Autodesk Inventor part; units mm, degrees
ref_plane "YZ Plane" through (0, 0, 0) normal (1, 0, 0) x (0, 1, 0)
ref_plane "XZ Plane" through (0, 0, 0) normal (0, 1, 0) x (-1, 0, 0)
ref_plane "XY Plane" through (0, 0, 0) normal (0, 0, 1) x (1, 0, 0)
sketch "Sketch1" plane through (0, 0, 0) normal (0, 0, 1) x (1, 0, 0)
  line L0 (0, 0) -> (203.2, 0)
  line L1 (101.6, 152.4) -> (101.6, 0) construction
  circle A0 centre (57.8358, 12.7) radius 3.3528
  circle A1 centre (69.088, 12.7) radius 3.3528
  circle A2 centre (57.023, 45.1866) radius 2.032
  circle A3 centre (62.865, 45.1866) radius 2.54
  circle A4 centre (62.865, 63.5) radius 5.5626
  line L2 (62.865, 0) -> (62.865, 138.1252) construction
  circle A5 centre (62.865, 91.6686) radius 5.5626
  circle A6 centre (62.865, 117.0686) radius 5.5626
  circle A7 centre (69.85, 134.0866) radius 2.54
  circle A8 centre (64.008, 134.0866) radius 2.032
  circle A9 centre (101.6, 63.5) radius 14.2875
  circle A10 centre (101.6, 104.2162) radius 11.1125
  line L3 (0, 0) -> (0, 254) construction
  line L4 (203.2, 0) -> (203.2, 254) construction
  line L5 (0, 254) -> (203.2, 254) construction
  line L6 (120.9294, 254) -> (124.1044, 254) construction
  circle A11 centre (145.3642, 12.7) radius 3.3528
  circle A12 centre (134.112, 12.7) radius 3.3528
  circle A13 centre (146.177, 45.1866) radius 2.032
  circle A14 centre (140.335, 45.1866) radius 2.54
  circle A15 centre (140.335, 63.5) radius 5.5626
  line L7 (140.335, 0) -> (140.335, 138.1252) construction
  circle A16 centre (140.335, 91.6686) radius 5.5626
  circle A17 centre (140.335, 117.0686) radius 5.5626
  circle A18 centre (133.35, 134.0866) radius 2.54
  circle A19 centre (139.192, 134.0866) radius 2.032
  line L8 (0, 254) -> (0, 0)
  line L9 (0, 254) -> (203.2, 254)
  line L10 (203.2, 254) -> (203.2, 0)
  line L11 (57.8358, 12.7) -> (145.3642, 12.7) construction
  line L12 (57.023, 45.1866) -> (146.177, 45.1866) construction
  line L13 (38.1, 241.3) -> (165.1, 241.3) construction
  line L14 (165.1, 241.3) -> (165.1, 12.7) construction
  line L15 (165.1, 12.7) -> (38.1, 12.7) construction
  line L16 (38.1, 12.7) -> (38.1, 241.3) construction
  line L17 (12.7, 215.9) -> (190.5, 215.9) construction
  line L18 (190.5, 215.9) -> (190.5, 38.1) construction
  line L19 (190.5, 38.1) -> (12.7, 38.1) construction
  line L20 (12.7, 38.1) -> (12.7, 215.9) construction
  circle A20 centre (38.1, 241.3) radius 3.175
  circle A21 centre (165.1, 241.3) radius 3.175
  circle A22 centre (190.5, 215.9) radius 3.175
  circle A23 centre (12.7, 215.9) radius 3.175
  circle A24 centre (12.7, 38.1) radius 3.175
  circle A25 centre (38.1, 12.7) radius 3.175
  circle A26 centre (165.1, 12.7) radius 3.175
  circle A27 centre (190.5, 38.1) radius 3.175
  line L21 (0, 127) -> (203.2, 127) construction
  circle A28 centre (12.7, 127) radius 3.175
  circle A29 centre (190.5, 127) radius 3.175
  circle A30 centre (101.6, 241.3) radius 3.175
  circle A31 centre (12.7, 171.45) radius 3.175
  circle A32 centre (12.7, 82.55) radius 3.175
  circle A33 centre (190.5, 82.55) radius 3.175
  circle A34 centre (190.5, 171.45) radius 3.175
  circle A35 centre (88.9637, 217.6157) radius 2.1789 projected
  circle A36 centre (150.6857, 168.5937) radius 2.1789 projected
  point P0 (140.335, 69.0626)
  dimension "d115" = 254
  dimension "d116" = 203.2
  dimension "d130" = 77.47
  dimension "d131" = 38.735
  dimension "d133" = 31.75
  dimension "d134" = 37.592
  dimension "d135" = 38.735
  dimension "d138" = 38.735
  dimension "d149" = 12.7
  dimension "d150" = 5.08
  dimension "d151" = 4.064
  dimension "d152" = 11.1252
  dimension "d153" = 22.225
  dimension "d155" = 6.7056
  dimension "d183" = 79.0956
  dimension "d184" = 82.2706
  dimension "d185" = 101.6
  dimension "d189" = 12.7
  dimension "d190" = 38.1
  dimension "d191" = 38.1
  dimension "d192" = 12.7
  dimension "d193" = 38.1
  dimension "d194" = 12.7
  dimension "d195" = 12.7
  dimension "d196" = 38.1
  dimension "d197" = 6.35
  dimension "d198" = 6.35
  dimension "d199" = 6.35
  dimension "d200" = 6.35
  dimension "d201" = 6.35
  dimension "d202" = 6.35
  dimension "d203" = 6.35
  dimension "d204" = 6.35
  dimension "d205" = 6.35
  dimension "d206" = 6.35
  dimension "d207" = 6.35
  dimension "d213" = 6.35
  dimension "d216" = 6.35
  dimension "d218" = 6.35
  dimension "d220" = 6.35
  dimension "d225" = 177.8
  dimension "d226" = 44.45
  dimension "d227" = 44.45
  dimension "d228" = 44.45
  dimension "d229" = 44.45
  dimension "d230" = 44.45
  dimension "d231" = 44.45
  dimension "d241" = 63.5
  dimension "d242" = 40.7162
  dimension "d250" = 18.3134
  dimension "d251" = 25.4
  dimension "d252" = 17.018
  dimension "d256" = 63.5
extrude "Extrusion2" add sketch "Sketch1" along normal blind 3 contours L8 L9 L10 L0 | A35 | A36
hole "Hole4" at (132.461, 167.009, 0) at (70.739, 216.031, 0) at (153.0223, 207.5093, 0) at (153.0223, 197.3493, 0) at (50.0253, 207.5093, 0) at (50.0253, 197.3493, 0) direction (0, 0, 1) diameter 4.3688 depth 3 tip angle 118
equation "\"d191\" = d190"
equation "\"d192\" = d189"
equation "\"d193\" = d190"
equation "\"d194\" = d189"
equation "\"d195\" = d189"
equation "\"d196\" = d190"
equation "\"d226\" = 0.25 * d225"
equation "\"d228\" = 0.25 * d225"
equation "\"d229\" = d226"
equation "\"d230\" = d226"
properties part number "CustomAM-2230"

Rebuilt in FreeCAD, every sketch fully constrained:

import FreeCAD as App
import Part
import Sketcher

V = App.Vector
Q = App.Units.Quantity

doc = App.newDocument("Part")
body = doc.addObject("PartDesign::Body", "Body")

sketch1 = doc.addObject("Sketcher::SketchObject", "Sketch")
body.addObject(sketch1)
sketch1.AttachmentSupport = (doc.XY_Plane, [""])
sketch1.MapMode = "FlatFace"
sketch1.addGeometry(Part.LineSegment(V(0, 254, 0), V(0, 0, 0)), False)
sketch1.addGeometry(Part.LineSegment(V(0, 0, 0), V(203.2, 0, 0)), False)
sketch1.addGeometry(Part.LineSegment(V(203.2, 0, 0), V(203.2, 254, 0)), False)
sketch1.addGeometry(Part.LineSegment(V(203.2, 254, 0), V(0, 254, 0)), False)
sketch1.addGeometry(Part.Circle(V(38.1, 12.7, 0), V(0, 0, 1), 3.2), False)
sketch1.addGeometry(Part.Circle(V(12.7, 38.1, 0), V(0, 0, 1), 3.2), False)
sketch1.addGeometry(Part.Circle(V(57.8, 12.7, 0), V(0, 0, 1), 3.4), False)
sketch1.addGeometry(Part.Circle(V(69.1, 12.7, 0), V(0, 0, 1), 3.4), False)
sketch1.addGeometry(Part.Circle(V(57, 45.2, 0), V(0, 0, 1), 2), False)
sketch1.addGeometry(Part.Circle(V(62.9, 45.2, 0), V(0, 0, 1), 2.5), False)
sketch1.addGeometry(Part.Circle(V(12.7, 82.5, 0), V(0, 0, 1), 3.2), False)
sketch1.addGeometry(Part.Circle(V(62.9, 63.5, 0), V(0, 0, 1), 5.6), False)
sketch1.addGeometry(Part.Circle(V(62.9, 91.7, 0), V(0, 0, 1), 5.6), False)
sketch1.addGeometry(Part.Circle(V(101.6, 63.5, 0), V(0, 0, 1), 14.3), False)
sketch1.addGeometry(Part.Circle(V(62.9, 117.1, 0), V(0, 0, 1), 5.6), False)
sketch1.addGeometry(Part.Circle(V(101.6, 104.2, 0), V(0, 0, 1), 11.1), False)
sketch1.addGeometry(Part.Circle(V(134.1, 12.7, 0), V(0, 0, 1), 3.4), False)
sketch1.addGeometry(Part.Circle(V(145.4, 12.7, 0), V(0, 0, 1), 3.4), False)
sketch1.addGeometry(Part.Circle(V(140.3, 45.2, 0), V(0, 0, 1), 2.5), False)
sketch1.addGeometry(Part.Circle(V(146.2, 45.2, 0), V(0, 0, 1), 2), False)
sketch1.addGeometry(Part.Circle(V(165.1, 12.7, 0), V(0, 0, 1), 3.2), False)
sketch1.addGeometry(Part.Circle(V(190.5, 38.1, 0), V(0, 0, 1), 3.2), False)
sketch1.addGeometry(Part.Circle(V(140.3, 63.5, 0), V(0, 0, 1), 5.6), False)
sketch1.addGeometry(Part.Circle(V(140.3, 91.7, 0), V(0, 0, 1), 5.6), False)
sketch1.addGeometry(Part.Circle(V(140.3, 117.1, 0), V(0, 0, 1), 5.6), False)
sketch1.addGeometry(Part.Circle(V(190.5, 82.5, 0), V(0, 0, 1), 3.2), False)
sketch1.addGeometry(Part.Circle(V(12.7, 127, 0), V(0, 0, 1), 3.2), False)
sketch1.addGeometry(Part.Circle(V(12.7, 171.4, 0), V(0, 0, 1), 3.2), False)
sketch1.addGeometry(Part.Circle(V(64, 134.1, 0), V(0, 0, 1), 2), False)
sketch1.addGeometry(Part.Circle(V(69.8, 134.1, 0), V(0, 0, 1), 2.5), False)
sketch1.addGeometry(Part.Circle(V(12.7, 215.9, 0), V(0, 0, 1), 3.2), False)
sketch1.addGeometry(Part.Circle(V(38.1, 241.3, 0), V(0, 0, 1), 3.2), False)
sketch1.addGeometry(Part.Circle(V(101.6, 241.3, 0), V(0, 0, 1), 3.2), False)
sketch1.addGeometry(Part.Circle(V(133.3, 134.1, 0), V(0, 0, 1), 2.5), False)
sketch1.addGeometry(Part.Circle(V(139.2, 134.1, 0), V(0, 0, 1), 2), False)
sketch1.addGeometry(Part.Circle(V(190.5, 127, 0), V(0, 0, 1), 3.2), False)
sketch1.addGeometry(Part.Circle(V(190.5, 171.4, 0), V(0, 0, 1), 3.2), False)
sketch1.addGeometry(Part.Circle(V(190.5, 215.9, 0), V(0, 0, 1), 3.2), False)
sketch1.addGeometry(Part.Circle(V(165.1, 241.3, 0), V(0, 0, 1), 3.2), False)
sketch1.addConstraint(Sketcher.Constraint("Coincident", 0, 2, 1, 1))
sketch1.addConstraint(Sketcher.Constraint("Coincident", 1, 2, 2, 1))
sketch1.addConstraint(Sketcher.Constraint("Coincident", 2, 2, 3, 1))
sketch1.addConstraint(Sketcher.Constraint("Coincident", 3, 2, 0, 1))
sketch1.addConstraint(Sketcher.Constraint("Vertical", 0))
sketch1.addConstraint(Sketcher.Constraint("Horizontal", 1))
sketch1.addConstraint(Sketcher.Constraint("Vertical", 2))
sketch1.addConstraint(Sketcher.Constraint("Horizontal", 3))
sketch1.addConstraint(Sketcher.Constraint("Coincident", 0, 2, -1, 1))
sketch1.addConstraint(Sketcher.Constraint("Equal", 4, 5))
sketch1.addConstraint(Sketcher.Constraint("Equal", 6, 7))
sketch1.addConstraint(Sketcher.Constraint("Equal", 5, 10))
sketch1.addConstraint(Sketcher.Constraint("Equal", 11, 12))
sketch1.addConstraint(Sketcher.Constraint("Equal", 12, 14))
sketch1.addConstraint(Sketcher.Constraint("Equal", 7, 16))
sketch1.addConstraint(Sketcher.Constraint("Equal", 16, 17))
sketch1.addConstraint(Sketcher.Constraint("Equal", 9, 18))
sketch1.addConstraint(Sketcher.Constraint("Equal", 8, 19))
sketch1.addConstraint(Sketcher.Constraint("Equal", 10, 20))
sketch1.addConstraint(Sketcher.Constraint("Equal", 20, 21))
sketch1.addConstraint(Sketcher.Constraint("Equal", 14, 22))
sketch1.addConstraint(Sketcher.Constraint("Equal", 22, 23))
sketch1.addConstraint(Sketcher.Constraint("Equal", 23, 24))
sketch1.addConstraint(Sketcher.Constraint("Equal", 21, 25))
sketch1.addConstraint(Sketcher.Constraint("Equal", 25, 26))
sketch1.addConstraint(Sketcher.Constraint("Equal", 26, 27))
sketch1.addConstraint(Sketcher.Constraint("Equal", 19, 28))
sketch1.addConstraint(Sketcher.Constraint("Equal", 18, 29))
sketch1.addConstraint(Sketcher.Constraint("Equal", 27, 30))
sketch1.addConstraint(Sketcher.Constraint("Equal", 30, 31))
sketch1.addConstraint(Sketcher.Constraint("Equal", 31, 32))
sketch1.addConstraint(Sketcher.Constraint("Equal", 29, 33))
sketch1.addConstraint(Sketcher.Constraint("Equal", 28, 34))
sketch1.addConstraint(Sketcher.Constraint("Equal", 32, 35))
sketch1.addConstraint(Sketcher.Constraint("Equal", 35, 36))
sketch1.addConstraint(Sketcher.Constraint("Equal", 36, 37))
sketch1.addConstraint(Sketcher.Constraint("Equal", 37, 38))
sketch1.addConstraint(Sketcher.Constraint("Horizontal", 4, 3, 6, 3))
sketch1.addConstraint(Sketcher.Constraint("Horizontal", 6, 3, 7, 3))
sketch1.addConstraint(Sketcher.Constraint("Horizontal", 8, 3, 9, 3))
sketch1.addConstraint(Sketcher.Constraint("Horizontal", 11, 3, 13, 3))
sketch1.addConstraint(Sketcher.Constraint("Horizontal", 7, 3, 16, 3))
sketch1.addConstraint(Sketcher.Constraint("Horizontal", 16, 3, 17, 3))
sketch1.addConstraint(Sketcher.Constraint("Horizontal", 9, 3, 18, 3))
sketch1.addConstraint(Sketcher.Constraint("Horizontal", 18, 3, 19, 3))
sketch1.addConstraint(Sketcher.Constraint("Horizontal", 17, 3, 20, 3))
sketch1.addConstraint(Sketcher.Constraint("Horizontal", 5, 3, 21, 3))
sketch1.addConstraint(Sketcher.Constraint("Horizontal", 13, 3, 22, 3))
sketch1.addConstraint(Sketcher.Constraint("Horizontal", 12, 3, 23, 3))
sketch1.addConstraint(Sketcher.Constraint("Horizontal", 14, 3, 24, 3))
sketch1.addConstraint(Sketcher.Constraint("Horizontal", 10, 3, 25, 3))
sketch1.addConstraint(Sketcher.Constraint("Horizontal", 28, 3, 29, 3))
sketch1.addConstraint(Sketcher.Constraint("Horizontal", 31, 3, 32, 3))
sketch1.addConstraint(Sketcher.Constraint("Horizontal", 29, 3, 33, 3))
sketch1.addConstraint(Sketcher.Constraint("Horizontal", 33, 3, 34, 3))
sketch1.addConstraint(Sketcher.Constraint("Horizontal", 26, 3, 35, 3))
sketch1.addConstraint(Sketcher.Constraint("Horizontal", 27, 3, 36, 3))
sketch1.addConstraint(Sketcher.Constraint("Horizontal", 30, 3, 37, 3))
sketch1.addConstraint(Sketcher.Constraint("Horizontal", 32, 3, 38, 3))
sketch1.addConstraint(Sketcher.Constraint("Vertical", 5, 3, 10, 3))
sketch1.addConstraint(Sketcher.Constraint("Vertical", 9, 3, 11, 3))
sketch1.addConstraint(Sketcher.Constraint("Vertical", 11, 3, 12, 3))
sketch1.addConstraint(Sketcher.Constraint("Vertical", 12, 3, 14, 3))
sketch1.addConstraint(Sketcher.Constraint("Vertical", 13, 3, 15, 3))
sketch1.addConstraint(Sketcher.Constraint("Vertical", 18, 3, 22, 3))
sketch1.addConstraint(Sketcher.Constraint("Vertical", 22, 3, 23, 3))
sketch1.addConstraint(Sketcher.Constraint("Vertical", 23, 3, 24, 3))
sketch1.addConstraint(Sketcher.Constraint("Vertical", 21, 3, 25, 3))
sketch1.addConstraint(Sketcher.Constraint("Vertical", 10, 3, 26, 3))
sketch1.addConstraint(Sketcher.Constraint("Vertical", 26, 3, 27, 3))
sketch1.addConstraint(Sketcher.Constraint("Vertical", 27, 3, 30, 3))
sketch1.addConstraint(Sketcher.Constraint("Vertical", 4, 3, 31, 3))
sketch1.addConstraint(Sketcher.Constraint("Vertical", 15, 3, 32, 3))
sketch1.addConstraint(Sketcher.Constraint("Vertical", 25, 3, 35, 3))
sketch1.addConstraint(Sketcher.Constraint("Vertical", 35, 3, 36, 3))
sketch1.addConstraint(Sketcher.Constraint("Vertical", 36, 3, 37, 3))
sketch1.addConstraint(Sketcher.Constraint("Vertical", 20, 3, 38, 3))
sketch1.addConstraint(Sketcher.Constraint("Diameter", 9, Q("0.2 in")))
sketch1.addConstraint(Sketcher.Constraint("Diameter", 4, Q("0.25 in")))
sketch1.addConstraint(Sketcher.Constraint("Diameter", 8, Q("0.16 in")))
sketch1.addConstraint(Sketcher.Constraint("DistanceX", 1, 1, 1, 2, Q("8 in")))
sketch1.addConstraint(Sketcher.Constraint("DistanceY", 0, 2, 0, 1, Q("10 in")))
sketch1.addConstraint(Sketcher.Constraint("Diameter", 6, Q("0.264 in")))
sketch1.addConstraint(Sketcher.Constraint("Diameter", 11, Q("0.438 in")))
sketch1.addConstraint(Sketcher.Constraint("Diameter", 15, Q("0.875 in")))
sketch1.addConstraint(Sketcher.Constraint("DistanceX", -1, 1, 13, 3, Q("4 in")))
sketch1.addConstraint(Sketcher.Constraint("DistanceX", 5, 3, 4, 3, Q("1 in")))
sketch1.addConstraint(Sketcher.Constraint("DistanceY", 4, 3, 5, 3, Q("1 in")))
sketch1.addConstraint(Sketcher.Constraint("DistanceY", 12, 3, 14, 3, Q("1 in")))
sketch1.addConstraint(Sketcher.Constraint("DistanceX", 20, 3, 21, 3, Q("1 in")))
sketch1.addConstraint(Sketcher.Constraint("DistanceY", 30, 3, 31, 3, Q("1 in")))
sketch1.addConstraint(Sketcher.Constraint("DistanceX", -1, 1, 4, 3, Q("1.5 in")))
sketch1.addConstraint(Sketcher.Constraint("DistanceY", -1, 1, 4, 3, Q("0.5 in")))
sketch1.addConstraint(Sketcher.Constraint("DistanceY", -1, 1, 11, 3, Q("2.5 in")))
sketch1.addConstraint(Sketcher.Constraint("DistanceX", 13, 3, 20, 3, Q("2.5 in")))
sketch1.addConstraint(Sketcher.Constraint("DistanceY", 11, 3, 26, 3, Q("2.5 in")))
sketch1.addConstraint(Sketcher.Constraint("DistanceX", 29, 3, 33, 3, Q("2.5 in")))
sketch1.addConstraint(Sketcher.Constraint("DistanceY", 37, 3, 2, 2, Q("1.5 in")))
sketch1.addConstraint(Sketcher.Constraint("DistanceY", 5, 3, 10, 3, Q("1.75 in")))
sketch1.addConstraint(Sketcher.Constraint("DistanceX", 9, 3, 18, 3, Q("3.05 in")))
sketch1.addConstraint(Sketcher.Constraint("DistanceY", 26, 3, 27, 3, Q("1.75 in")))
sketch1.addConstraint(Sketcher.Constraint("DistanceY", 14, 3, 28, 3, Q("0.67 in")))
sketch1.addConstraint(Sketcher.Constraint("DistanceX", 28, 3, 15, 3, Q("1.48 in")))
sketch1.addConstraint(Sketcher.Constraint("DistanceX", 29, 3, 15, 3, Q("1.25 in")))
sketch1.addConstraint(Sketcher.Constraint("DistanceX", 15, 3, 34, 3, Q("1.48 in")))
sketch1.addConstraint(Sketcher.Constraint("Diameter", 13, Q("1.125 in")))
sketch1.addConstraint(Sketcher.Constraint("DistanceY", 9, 3, 11, 3, Q("0.721 in")))
sketch1.addConstraint(Sketcher.Constraint("DistanceX", 11, 3, 13, 3, Q("1.525 in")))
sketch1.addConstraint(Sketcher.Constraint("DistanceY", 13, 3, 15, 3, Q("1.603 in")))
sketch1.addConstraint(Sketcher.Constraint("DistanceX", -1, 1, 7, 3, Q("2.72 in")))
sketch1.addConstraint(Sketcher.Constraint("DistanceX", -1, 1, 16, 3, Q("5.28 in")))
sketch1.addConstraint(Sketcher.Constraint("DistanceX", 8, 3, 9, 3, Q("0.23 in")))
sketch1.addConstraint(Sketcher.Constraint("DistanceY", 9, 3, 12, 3, Q("1.83 in")))
sketch1.addConstraint(Sketcher.Constraint("DistanceX", 18, 3, 19, 3, Q("0.23 in")))
sketch1.addConstraint(Sketcher.Constraint("DistanceX", -1, 1, 6, 3, Q("2.277 in")))
sketch1.addConstraint(Sketcher.Constraint("DistanceX", -1, 1, 17, 3, Q("5.723 in")))
pad1 = doc.addObject("PartDesign::Pad", "Pad")
body.addObject(pad1)
pad1.Profile = sketch1
pad1.Length = Q("0.1181102 in")

sketch2 = doc.addObject("Sketcher::SketchObject", "Sketch001")
body.addObject(sketch2)
sketch2.AttachmentSupport = (doc.XY_Plane, [""])
sketch2.MapMode = "FlatFace"
sketch2.addGeometry(Part.Circle(V(132.5, 167, 0), V(0, 0, 1), 2.2), False)
sketch2.addGeometry(Part.Circle(V(70.7, 216, 0), V(0, 0, 1), 2.2), False)
sketch2.addGeometry(Part.Circle(V(153, 207.5, 0), V(0, 0, 1), 2.2), False)
sketch2.addGeometry(Part.Circle(V(153, 197.3, 0), V(0, 0, 1), 2.2), False)
sketch2.addGeometry(Part.Circle(V(50, 207.5, 0), V(0, 0, 1), 2.2), False)
sketch2.addGeometry(Part.Circle(V(50, 197.3, 0), V(0, 0, 1), 2.2), False)
sketch2.addConstraint(Sketcher.Constraint("Equal", 0, 1))
sketch2.addConstraint(Sketcher.Constraint("Equal", 1, 2))
sketch2.addConstraint(Sketcher.Constraint("Equal", 2, 3))
sketch2.addConstraint(Sketcher.Constraint("Equal", 3, 4))
sketch2.addConstraint(Sketcher.Constraint("Equal", 4, 5))
sketch2.addConstraint(Sketcher.Constraint("Horizontal", 2, 3, 4, 3))
sketch2.addConstraint(Sketcher.Constraint("Horizontal", 3, 3, 5, 3))
sketch2.addConstraint(Sketcher.Constraint("Vertical", 2, 3, 3, 3))
sketch2.addConstraint(Sketcher.Constraint("Vertical", 4, 3, 5, 3))
sketch2.addConstraint(Sketcher.Constraint("Diameter", 0, Q("0.172 in")))
sketch2.addConstraint(Sketcher.Constraint("DistanceY", 3, 3, 2, 3, Q("0.4 in")))
sketch2.addConstraint(Sketcher.Constraint("DistanceX", 1, 3, 0, 3, Q("2.43 in")))
sketch2.addConstraint(Sketcher.Constraint("DistanceY", 0, 3, 1, 3, Q("1.93 in")))
sketch2.addConstraint(Sketcher.Constraint("DistanceX", -1, 1, 0, 3, Q("5.215 in")))
sketch2.addConstraint(Sketcher.Constraint("DistanceX", 4, 3, 2, 3, Q("4.055 in")))
sketch2.addConstraint(Sketcher.Constraint("DistanceX", -1, 1, 2, 3, Q("6.0245 in")))
sketch2.addConstraint(Sketcher.Constraint("DistanceY", 0, 3, 2, 3, Q("1.5945 in")))
sketch2.addConstraint(Sketcher.Constraint("DistanceY", -1, 1, 0, 3, Q("167.009 mm")))
doc.recompute()
hole = doc.addObject("PartDesign::Hole", "Hole")
body.addObject(hole)
hole.Profile = sketch2
hole.ThreadType = "None"
hole.Diameter = Q("0.172 in")
hole.DepthType = "Dimension"
hole.Depth = Q("0.1181102 in")
hole.DrillPoint = "Angled"
hole.DrillPointAngle = 118
hole.Reversed = True

doc.recompute()
